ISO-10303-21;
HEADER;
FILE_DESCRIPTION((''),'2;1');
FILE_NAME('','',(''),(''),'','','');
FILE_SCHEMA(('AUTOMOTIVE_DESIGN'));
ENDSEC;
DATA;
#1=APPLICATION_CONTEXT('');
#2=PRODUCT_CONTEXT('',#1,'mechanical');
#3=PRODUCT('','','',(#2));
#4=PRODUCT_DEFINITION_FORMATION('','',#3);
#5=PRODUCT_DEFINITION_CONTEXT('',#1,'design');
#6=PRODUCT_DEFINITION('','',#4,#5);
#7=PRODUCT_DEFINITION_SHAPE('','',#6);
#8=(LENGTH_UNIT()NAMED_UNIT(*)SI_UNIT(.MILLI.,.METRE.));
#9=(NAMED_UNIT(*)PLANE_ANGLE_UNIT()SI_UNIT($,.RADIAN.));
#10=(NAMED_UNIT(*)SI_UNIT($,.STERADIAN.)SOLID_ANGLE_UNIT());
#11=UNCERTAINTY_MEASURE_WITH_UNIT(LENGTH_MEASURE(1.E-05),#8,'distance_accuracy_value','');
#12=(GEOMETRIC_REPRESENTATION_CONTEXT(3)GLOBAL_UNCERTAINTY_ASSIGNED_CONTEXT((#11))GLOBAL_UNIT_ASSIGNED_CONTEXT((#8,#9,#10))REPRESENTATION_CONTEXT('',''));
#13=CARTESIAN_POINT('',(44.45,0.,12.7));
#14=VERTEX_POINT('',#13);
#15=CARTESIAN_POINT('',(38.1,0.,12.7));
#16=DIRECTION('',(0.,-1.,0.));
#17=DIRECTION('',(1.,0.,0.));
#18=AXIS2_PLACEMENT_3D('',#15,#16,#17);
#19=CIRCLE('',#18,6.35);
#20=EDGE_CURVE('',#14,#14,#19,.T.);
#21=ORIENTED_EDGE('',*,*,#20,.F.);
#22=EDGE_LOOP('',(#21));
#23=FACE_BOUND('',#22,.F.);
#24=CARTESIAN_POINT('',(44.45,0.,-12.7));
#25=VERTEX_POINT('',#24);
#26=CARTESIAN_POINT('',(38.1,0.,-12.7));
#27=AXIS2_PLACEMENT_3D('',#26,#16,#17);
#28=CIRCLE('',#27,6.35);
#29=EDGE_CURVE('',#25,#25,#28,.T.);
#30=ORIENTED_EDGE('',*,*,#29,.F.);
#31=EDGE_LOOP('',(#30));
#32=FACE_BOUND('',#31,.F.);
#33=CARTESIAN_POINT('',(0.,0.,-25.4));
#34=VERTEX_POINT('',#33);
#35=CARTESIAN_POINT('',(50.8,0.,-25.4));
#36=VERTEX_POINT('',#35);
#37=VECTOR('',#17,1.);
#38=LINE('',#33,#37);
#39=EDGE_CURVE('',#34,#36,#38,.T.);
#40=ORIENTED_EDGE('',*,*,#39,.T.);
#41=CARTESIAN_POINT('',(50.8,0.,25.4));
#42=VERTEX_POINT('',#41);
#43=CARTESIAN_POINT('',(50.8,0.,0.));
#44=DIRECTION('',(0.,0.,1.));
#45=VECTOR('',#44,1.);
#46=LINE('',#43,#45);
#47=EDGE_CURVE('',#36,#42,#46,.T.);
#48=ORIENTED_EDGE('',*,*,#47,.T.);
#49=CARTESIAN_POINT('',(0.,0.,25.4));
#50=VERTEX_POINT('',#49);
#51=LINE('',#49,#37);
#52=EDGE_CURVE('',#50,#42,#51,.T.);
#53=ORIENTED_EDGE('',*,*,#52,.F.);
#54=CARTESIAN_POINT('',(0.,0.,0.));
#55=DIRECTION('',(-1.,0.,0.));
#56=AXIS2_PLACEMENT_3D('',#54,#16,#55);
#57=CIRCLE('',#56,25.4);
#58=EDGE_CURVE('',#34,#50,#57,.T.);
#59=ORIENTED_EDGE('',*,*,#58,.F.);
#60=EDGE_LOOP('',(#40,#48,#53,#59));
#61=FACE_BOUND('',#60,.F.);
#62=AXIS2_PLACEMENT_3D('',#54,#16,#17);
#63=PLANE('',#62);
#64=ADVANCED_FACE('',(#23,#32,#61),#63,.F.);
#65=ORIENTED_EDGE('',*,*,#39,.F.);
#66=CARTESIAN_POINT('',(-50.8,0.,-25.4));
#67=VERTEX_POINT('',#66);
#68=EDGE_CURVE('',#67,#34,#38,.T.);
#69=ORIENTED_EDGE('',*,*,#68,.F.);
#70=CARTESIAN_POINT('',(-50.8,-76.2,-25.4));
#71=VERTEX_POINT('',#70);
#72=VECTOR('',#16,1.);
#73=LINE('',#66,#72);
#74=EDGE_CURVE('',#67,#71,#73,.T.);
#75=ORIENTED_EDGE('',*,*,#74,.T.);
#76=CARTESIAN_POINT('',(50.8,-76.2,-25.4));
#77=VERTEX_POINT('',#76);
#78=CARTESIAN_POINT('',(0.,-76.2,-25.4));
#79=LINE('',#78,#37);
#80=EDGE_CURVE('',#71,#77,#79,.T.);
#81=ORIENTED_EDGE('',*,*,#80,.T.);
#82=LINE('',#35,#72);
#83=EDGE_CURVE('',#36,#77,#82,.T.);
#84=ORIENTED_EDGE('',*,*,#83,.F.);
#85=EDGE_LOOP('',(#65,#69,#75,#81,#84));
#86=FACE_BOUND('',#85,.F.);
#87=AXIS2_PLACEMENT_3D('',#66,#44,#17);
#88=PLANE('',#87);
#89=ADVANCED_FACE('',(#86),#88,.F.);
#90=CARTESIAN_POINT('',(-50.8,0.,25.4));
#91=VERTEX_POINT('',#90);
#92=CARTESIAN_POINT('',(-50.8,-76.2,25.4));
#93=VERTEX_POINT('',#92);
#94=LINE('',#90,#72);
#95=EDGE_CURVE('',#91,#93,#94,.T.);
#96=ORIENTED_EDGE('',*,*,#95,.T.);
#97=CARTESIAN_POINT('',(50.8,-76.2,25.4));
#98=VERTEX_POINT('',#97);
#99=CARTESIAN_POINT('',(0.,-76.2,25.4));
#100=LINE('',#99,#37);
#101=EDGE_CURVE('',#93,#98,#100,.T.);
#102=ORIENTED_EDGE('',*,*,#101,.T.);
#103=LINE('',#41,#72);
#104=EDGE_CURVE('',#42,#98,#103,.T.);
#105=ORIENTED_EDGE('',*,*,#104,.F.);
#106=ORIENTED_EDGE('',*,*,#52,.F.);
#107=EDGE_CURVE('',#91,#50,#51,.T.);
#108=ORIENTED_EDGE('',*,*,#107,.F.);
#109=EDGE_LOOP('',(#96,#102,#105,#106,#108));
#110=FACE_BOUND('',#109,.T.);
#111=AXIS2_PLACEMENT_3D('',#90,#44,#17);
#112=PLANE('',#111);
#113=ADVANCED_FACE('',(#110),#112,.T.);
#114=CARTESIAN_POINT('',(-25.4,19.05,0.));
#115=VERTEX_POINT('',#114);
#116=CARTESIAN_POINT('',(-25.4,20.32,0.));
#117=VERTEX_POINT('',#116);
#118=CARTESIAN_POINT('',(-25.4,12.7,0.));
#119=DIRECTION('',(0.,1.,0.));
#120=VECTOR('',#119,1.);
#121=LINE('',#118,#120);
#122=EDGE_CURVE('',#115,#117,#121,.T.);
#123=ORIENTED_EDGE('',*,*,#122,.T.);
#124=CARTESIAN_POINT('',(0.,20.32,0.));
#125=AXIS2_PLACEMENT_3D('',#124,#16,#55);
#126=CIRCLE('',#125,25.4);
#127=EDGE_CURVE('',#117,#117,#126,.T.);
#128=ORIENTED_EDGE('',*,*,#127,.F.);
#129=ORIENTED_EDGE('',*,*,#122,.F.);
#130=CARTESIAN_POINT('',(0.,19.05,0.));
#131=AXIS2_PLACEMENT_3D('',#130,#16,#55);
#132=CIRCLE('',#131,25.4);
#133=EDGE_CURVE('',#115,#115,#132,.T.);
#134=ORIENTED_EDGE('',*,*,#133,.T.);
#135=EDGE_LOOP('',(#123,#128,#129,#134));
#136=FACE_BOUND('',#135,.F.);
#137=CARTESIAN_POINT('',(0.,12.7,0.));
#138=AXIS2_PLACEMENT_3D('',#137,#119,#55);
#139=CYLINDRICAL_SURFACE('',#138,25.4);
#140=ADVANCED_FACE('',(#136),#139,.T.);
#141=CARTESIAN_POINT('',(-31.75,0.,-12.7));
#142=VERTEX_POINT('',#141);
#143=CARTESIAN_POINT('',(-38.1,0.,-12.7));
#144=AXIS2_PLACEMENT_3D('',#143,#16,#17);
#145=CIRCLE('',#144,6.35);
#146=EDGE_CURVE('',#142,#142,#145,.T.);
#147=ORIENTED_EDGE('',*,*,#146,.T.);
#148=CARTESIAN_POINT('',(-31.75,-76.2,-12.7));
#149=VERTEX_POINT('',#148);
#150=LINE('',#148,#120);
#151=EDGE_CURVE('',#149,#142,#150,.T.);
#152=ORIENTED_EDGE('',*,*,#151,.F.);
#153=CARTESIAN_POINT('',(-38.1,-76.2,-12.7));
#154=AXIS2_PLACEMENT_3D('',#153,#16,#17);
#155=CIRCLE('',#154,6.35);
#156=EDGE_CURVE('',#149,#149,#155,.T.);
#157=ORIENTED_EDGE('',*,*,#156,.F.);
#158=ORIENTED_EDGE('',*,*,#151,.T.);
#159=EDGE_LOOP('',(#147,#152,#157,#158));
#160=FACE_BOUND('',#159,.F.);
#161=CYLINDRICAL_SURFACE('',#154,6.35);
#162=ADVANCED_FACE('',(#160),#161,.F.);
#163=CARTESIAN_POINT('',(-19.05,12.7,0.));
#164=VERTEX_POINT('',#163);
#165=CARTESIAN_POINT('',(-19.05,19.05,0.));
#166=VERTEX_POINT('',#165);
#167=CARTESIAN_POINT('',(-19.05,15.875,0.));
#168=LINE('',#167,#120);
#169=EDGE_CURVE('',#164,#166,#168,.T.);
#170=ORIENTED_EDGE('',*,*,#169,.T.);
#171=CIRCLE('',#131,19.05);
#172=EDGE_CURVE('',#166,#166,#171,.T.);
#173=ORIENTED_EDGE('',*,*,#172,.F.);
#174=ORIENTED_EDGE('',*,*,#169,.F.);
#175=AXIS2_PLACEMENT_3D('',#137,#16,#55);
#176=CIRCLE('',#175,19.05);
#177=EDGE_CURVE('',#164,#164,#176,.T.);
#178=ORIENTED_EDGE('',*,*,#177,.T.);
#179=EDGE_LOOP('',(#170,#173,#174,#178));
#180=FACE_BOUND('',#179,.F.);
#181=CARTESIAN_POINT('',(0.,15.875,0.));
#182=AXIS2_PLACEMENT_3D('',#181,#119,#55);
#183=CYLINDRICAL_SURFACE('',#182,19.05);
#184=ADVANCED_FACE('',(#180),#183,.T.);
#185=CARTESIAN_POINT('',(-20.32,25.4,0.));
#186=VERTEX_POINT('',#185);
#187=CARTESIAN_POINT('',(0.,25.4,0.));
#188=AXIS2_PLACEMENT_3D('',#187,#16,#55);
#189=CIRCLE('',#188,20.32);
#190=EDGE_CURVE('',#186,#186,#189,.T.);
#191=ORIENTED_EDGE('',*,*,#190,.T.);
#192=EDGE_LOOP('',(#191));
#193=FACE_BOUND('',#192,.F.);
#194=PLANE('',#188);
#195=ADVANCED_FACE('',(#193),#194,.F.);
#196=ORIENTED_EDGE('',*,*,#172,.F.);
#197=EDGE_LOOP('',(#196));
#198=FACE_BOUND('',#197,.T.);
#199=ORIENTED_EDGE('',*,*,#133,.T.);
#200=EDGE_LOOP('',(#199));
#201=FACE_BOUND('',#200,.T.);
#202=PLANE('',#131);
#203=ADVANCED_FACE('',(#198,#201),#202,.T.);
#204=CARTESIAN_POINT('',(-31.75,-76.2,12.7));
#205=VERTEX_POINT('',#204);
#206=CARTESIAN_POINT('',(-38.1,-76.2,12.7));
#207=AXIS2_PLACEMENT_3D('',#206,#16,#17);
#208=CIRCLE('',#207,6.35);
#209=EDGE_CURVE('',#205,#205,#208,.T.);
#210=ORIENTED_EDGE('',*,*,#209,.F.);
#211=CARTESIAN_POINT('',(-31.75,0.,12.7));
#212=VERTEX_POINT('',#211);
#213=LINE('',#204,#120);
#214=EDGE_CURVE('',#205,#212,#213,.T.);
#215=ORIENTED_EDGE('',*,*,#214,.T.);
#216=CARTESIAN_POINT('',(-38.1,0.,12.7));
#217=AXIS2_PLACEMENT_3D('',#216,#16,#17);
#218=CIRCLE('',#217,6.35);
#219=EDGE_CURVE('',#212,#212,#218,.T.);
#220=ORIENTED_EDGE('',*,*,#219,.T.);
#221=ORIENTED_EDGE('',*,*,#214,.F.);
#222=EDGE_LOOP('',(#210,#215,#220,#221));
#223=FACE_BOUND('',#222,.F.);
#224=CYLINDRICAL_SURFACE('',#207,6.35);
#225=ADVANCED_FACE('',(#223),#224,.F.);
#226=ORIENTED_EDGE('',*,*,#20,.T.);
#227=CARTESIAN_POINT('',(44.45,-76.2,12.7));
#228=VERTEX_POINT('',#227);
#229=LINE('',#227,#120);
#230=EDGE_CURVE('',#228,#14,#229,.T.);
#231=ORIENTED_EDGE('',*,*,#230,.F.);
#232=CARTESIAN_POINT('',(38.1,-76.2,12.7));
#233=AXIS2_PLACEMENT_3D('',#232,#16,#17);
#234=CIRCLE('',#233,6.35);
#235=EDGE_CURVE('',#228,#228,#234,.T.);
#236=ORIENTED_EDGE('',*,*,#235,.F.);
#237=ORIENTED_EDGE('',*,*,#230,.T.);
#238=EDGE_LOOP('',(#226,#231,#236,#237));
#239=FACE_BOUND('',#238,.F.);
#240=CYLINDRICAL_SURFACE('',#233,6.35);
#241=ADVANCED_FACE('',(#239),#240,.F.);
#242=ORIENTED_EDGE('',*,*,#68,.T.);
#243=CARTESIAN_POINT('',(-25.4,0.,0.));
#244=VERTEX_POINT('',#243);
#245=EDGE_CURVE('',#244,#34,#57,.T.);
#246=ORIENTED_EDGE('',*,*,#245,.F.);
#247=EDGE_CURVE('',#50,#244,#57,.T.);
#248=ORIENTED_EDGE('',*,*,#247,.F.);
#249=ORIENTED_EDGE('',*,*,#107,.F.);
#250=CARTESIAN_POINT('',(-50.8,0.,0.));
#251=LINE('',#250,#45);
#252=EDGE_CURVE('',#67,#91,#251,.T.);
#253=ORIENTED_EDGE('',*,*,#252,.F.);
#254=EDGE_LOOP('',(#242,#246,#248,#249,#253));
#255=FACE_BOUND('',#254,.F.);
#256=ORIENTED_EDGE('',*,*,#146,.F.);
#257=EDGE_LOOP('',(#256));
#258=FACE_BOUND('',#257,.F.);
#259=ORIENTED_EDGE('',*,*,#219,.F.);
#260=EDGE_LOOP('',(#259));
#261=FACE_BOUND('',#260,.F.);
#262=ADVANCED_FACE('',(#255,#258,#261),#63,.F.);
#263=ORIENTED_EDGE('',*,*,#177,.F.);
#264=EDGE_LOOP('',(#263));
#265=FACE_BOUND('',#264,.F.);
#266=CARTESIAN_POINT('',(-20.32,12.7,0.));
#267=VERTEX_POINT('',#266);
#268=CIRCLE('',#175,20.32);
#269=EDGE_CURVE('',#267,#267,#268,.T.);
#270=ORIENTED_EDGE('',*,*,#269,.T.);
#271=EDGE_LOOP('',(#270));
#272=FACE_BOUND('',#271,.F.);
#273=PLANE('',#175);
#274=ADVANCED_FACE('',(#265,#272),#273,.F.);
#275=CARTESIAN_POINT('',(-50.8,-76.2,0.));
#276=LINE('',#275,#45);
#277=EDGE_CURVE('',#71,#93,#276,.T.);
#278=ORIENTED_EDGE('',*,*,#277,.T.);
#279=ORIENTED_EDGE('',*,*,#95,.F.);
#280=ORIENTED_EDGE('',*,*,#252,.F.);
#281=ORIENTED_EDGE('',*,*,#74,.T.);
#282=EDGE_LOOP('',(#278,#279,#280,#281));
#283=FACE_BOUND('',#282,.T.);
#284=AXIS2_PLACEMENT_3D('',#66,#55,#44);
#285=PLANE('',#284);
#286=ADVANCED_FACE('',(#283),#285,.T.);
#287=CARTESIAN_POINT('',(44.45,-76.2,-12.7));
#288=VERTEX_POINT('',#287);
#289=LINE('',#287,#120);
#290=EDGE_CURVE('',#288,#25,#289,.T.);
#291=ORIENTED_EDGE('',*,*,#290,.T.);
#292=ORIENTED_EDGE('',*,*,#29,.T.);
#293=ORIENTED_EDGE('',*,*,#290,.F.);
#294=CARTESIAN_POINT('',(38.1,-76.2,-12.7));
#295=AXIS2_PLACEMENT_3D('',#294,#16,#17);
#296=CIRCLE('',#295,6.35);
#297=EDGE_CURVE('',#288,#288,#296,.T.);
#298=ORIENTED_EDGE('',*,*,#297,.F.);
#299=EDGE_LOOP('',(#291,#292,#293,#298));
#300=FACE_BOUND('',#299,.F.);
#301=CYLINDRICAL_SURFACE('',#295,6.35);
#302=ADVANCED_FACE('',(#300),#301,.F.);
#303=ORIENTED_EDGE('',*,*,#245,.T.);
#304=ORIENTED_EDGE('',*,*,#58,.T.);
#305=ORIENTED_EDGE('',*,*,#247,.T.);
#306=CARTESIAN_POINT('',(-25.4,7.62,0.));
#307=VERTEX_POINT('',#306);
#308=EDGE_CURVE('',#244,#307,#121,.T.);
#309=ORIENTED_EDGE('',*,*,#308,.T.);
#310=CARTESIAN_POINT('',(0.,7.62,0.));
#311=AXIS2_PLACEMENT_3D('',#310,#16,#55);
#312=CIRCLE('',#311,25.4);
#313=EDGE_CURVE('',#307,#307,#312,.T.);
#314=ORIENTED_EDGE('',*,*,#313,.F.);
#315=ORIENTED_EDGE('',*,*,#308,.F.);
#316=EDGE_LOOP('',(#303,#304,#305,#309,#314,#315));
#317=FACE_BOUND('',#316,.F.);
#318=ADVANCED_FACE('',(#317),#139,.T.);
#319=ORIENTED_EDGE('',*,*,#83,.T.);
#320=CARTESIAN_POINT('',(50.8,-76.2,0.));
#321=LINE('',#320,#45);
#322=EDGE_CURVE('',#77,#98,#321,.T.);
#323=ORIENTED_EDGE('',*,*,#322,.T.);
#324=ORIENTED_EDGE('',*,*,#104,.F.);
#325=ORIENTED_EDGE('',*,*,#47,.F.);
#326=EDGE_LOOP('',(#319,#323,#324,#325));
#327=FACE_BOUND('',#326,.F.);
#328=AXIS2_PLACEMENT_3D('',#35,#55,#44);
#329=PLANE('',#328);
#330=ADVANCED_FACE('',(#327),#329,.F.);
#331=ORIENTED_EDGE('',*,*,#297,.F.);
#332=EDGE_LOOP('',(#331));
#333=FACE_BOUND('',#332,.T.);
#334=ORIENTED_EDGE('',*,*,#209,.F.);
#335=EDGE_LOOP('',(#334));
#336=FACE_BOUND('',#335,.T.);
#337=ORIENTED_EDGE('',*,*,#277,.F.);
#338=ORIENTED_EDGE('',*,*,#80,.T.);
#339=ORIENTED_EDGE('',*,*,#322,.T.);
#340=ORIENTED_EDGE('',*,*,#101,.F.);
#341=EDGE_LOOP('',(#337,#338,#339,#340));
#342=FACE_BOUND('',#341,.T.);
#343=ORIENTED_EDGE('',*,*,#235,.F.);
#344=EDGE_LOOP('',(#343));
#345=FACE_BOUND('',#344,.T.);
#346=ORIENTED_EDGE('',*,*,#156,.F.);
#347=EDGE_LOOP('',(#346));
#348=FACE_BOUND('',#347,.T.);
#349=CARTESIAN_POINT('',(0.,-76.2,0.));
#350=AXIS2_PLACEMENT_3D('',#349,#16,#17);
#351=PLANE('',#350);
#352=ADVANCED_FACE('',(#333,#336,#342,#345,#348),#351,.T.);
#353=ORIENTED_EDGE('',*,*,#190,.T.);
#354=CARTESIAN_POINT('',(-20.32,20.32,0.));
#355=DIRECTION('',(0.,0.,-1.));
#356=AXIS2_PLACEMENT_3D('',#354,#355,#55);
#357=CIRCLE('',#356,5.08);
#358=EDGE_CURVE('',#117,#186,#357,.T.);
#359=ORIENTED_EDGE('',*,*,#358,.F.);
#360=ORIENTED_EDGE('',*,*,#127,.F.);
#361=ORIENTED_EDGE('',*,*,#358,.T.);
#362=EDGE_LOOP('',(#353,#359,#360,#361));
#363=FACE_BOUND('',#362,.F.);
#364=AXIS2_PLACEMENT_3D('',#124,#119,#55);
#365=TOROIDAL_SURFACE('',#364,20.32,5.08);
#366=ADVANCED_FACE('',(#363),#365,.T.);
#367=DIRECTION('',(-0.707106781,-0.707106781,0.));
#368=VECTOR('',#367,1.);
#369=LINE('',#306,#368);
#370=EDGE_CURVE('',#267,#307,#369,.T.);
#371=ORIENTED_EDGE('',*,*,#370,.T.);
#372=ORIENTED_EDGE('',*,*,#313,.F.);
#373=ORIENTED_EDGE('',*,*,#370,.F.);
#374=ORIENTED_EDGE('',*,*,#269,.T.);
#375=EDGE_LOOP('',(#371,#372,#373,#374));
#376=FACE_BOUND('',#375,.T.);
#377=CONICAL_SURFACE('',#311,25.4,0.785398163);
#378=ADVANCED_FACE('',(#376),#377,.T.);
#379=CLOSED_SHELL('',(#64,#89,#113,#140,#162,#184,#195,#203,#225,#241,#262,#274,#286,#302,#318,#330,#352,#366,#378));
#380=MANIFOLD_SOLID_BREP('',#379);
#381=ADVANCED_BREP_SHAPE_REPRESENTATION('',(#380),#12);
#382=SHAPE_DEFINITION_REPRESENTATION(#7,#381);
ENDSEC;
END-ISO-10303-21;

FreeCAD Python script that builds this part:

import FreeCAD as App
import Part
import Sketcher
from FreeCAD import Vector
Q = App.Units.Quantity


def edges_at(feature, points):
    """Names of the edges that pass closest to the given points."""
    edges = feature.Shape.Edges
    near = lambda p: min(range(len(edges)), key=lambda i: edges[i].distToShape(Part.Vertex(*p))[0])
    return sorted({f"Edge{near(p) + 1}" for p in points})


def add_polygon(sketch, points):
    """Adds a closed chain of lines whose ends are joined by coincident constraints."""
    first, n = sketch.GeometryCount, len(points)
    for a, b in zip(points, points[1:] + points[:1]):
        sketch.addGeometry(Part.LineSegment(App.Vector(*a, 0), App.Vector(*b, 0)), False)
    for i in range(n):
        sketch.addConstraint(Sketcher.Constraint("Coincident", first + i, 2, first + (i + 1) % n, 1))

doc = App.newDocument("Part")
body = doc.addObject("PartDesign::Body", "Body")

# Sketch on XZ plane
sketch1 = body.newObject("Sketcher::SketchObject", "Sketch")
sketch1.AttachmentSupport = (doc.getObject("XZ_Plane"), [""])
sketch1.MapMode = "FlatFace"
add_polygon(sketch1, [(-51, 25), (-51, -25), (51, -25), (51, 25)])  # lines 0-3
sketch1.addConstraint([
    Sketcher.Constraint("Vertical", 0),
    Sketcher.Constraint("Horizontal", 1),
    Sketcher.Constraint("Vertical", 2),
    Sketcher.Constraint("Horizontal", 3),
    Sketcher.Constraint("Symmetric", 0, 2, 2, 2, -1, 1),
    Sketcher.Constraint("DistanceX", 1, 1, 1, 2, Q("4 in")),
    Sketcher.Constraint("DistanceY", 0, 2, 0, 1, Q("2 in")),
])
pad1 = body.newObject("PartDesign::Pad", "Pad")
pad1.Profile = sketch1
pad1.Length = Q("3 in")

# Sketch on XZ plane
sketch2 = body.newObject("Sketcher::SketchObject", "Sketch001")
sketch2.AttachmentSupport = (doc.getObject("XZ_Plane"), [""])
sketch2.MapMode = "FlatFace"
sketch2.AttachmentOffset = App.Placement(Vector(0, 0, 3 * 25.4), App.Rotation())
sketch2.addGeometry([
    Part.Circle(Vector(-38, 13, 0), Vector(0, 0, 1), 6),
    Part.Circle(Vector(-38, -13, 0), Vector(0, 0, 1), 6),
    Part.Circle(Vector(38, 13, 0), Vector(0, 0, 1), 6),
    Part.Circle(Vector(38, -13, 0), Vector(0, 0, 1), 6),
], False)
sketch2.addConstraint([
    Sketcher.Constraint("Equal", 0, 1),
    Sketcher.Constraint("Equal", 1, 2),
    Sketcher.Constraint("Equal", 2, 3),
    Sketcher.Constraint("Symmetric", 1, 3, 2, 3, -1, 1),
    Sketcher.Constraint("Symmetric", 0, 3, 3, 3, -1, 1),
    Sketcher.Constraint("Symmetric", 0, 3, 2, 3, -2),
    Sketcher.Constraint("Diameter", 0, Q("0.5 in")),
    Sketcher.Constraint("DistanceY", 1, 3, 0, 3, Q("1 in")),
    Sketcher.Constraint("DistanceX", 0, 3, 2, 3, Q("3 in")),
])
pocket1 = body.newObject("PartDesign::Pocket", "Pocket")
pocket1.Profile = sketch2
pocket1.Type = "ThroughAll"

# Sketch on XY plane
sketch3 = body.newObject("Sketcher::SketchObject", "Sketch002")
sketch3.AttachmentSupport = (doc.getObject("XY_Plane"), [""])
sketch3.MapMode = "FlatFace"
add_polygon(sketch3, [(-25, 25), (-25, 0), (0, 0), (0, 25)])  # lines 0-3
sketch3.addConstraint([
    Sketcher.Constraint("Vertical", 0),
    Sketcher.Constraint("Horizontal", 1),
    Sketcher.Constraint("Vertical", 2),
    Sketcher.Constraint("Horizontal", 3),
    Sketcher.Constraint("Coincident", 1, 2, -1, 1),
    Sketcher.Constraint("Equal", 3, 0),
    Sketcher.Constraint("DistanceX", 1, 1, 1, 2, Q("1 in")),
])
revolution = body.newObject("PartDesign::Revolution", "Revolution")
revolution.Profile = sketch3
revolution.ReferenceAxis = (sketch3, ["V_Axis"])
revolution.Angle = 360

# Sketch on XY plane
sketch4 = body.newObject("Sketcher::SketchObject", "Sketch003")
sketch4.AttachmentSupport = (doc.getObject("XY_Plane"), [""])
sketch4.MapMode = "FlatFace"
add_polygon(sketch4, [(-25, 19), (-25, 13), (-19, 13), (-19, 19)])  # lines 0-3
sketch4.addConstraint([
    Sketcher.Constraint("Vertical", 0),
    Sketcher.Constraint("Horizontal", 1),
    Sketcher.Constraint("Vertical", 2),
    Sketcher.Constraint("Horizontal", 3),
    Sketcher.Constraint("Equal", 3, 0),
    Sketcher.Constraint("DistanceX", 0, 2, -1, 1, Q("1 in")),
    Sketcher.Constraint("DistanceX", 1, 1, 1, 2, Q("0.25 in")),
    Sketcher.Constraint("DistanceY", -1, 1, 0, 2, Q("0.5 in")),
])
groove = body.newObject("PartDesign::Groove", "Groove")
groove.Profile = sketch4
groove.ReferenceAxis = (sketch4, ["V_Axis"])
groove.Angle = 360
doc.recompute()

fillet = body.newObject("PartDesign::Fillet", "Fillet")
fillet.Base = (groove, edges_at(groove, [(25.4, 25.4, 0)]))
fillet.Radius = Q("0.2 in")
doc.recompute()

chamfer = body.newObject("PartDesign::Chamfer", "Chamfer")
chamfer.Base = (fillet, edges_at(fillet, [(25.4, 12.7, 0)]))
chamfer.Size = Q("0.2 in")

doc.recompute()
